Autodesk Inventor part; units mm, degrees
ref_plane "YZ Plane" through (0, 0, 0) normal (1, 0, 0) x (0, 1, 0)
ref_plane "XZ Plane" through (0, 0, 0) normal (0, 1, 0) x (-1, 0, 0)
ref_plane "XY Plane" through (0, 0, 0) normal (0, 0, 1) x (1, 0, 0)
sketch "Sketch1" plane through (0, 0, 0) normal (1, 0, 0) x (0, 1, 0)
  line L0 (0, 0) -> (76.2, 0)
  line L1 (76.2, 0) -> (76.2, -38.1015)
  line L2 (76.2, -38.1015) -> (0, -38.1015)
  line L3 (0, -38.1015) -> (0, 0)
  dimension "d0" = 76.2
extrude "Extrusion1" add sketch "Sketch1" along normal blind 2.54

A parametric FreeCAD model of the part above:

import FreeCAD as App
import Part
import Sketcher
Q = App.Units.Quantity


def add_polygon(sketch, points):
    """Adds a closed chain of lines whose ends are joined by coincident constraints."""
    first, n = sketch.GeometryCount, len(points)
    for a, b in zip(points, points[1:] + points[:1]):
        sketch.addGeometry(Part.LineSegment(App.Vector(*a, 0), App.Vector(*b, 0)), False)
    for i in range(n):
        sketch.addConstraint(Sketcher.Constraint("Coincident", first + i, 2, first + (i + 1) % n, 1))

doc = App.newDocument("Part")
body = doc.addObject("PartDesign::Body", "Body")

# Sketch on YZ plane
sketch1 = body.newObject("Sketcher::SketchObject", "Sketch")
sketch1.AttachmentSupport = (doc.getObject("YZ_Plane"), [""])
sketch1.MapMode = "FlatFace"
add_polygon(sketch1, [(76, 0), (0, 0), (0, -38), (76, -38)])  # lines 0-3
sketch1.addConstraint([
    Sketcher.Constraint("Horizontal", 0),
    Sketcher.Constraint("Vertical", 1),
    Sketcher.Constraint("Horizontal", 2),
    Sketcher.Constraint("Vertical", 3),
    Sketcher.Constraint("Coincident", 0, 2, -1, 1),
    Sketcher.Constraint("DistanceX", 0, 2, 0, 1, Q("3 in")),
    Sketcher.Constraint("DistanceY", 1, 2, 1, 1, 38.1015),
])
pad1 = body.newObject("PartDesign::Pad", "Pad")
pad1.Profile = sketch1
pad1.Length = Q("0.1 in")

doc.recompute()
